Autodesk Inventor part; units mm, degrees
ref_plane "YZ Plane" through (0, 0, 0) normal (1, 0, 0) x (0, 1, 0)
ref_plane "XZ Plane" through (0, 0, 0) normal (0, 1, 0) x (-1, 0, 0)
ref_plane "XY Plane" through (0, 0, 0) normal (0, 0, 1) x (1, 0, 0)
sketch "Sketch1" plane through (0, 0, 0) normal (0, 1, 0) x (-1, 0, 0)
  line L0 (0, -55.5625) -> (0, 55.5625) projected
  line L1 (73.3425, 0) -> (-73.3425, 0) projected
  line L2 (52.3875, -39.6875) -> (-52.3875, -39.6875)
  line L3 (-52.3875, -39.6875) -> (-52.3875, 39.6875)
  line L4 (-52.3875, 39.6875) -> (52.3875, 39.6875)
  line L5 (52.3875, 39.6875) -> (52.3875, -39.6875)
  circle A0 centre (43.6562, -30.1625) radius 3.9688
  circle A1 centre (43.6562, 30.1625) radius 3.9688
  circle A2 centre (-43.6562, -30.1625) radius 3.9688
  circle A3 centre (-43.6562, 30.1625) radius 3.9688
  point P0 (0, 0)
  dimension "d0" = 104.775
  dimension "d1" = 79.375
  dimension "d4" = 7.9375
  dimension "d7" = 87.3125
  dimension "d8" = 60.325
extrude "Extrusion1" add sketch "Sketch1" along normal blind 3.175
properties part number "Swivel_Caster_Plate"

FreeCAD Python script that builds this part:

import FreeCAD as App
import Part
import Sketcher
from FreeCAD import Vector
Q = App.Units.Quantity


def add_polygon(sketch, points):
    """Adds a closed chain of lines whose ends are joined by coincident constraints."""
    first, n = sketch.GeometryCount, len(points)
    for a, b in zip(points, points[1:] + points[:1]):
        sketch.addGeometry(Part.LineSegment(App.Vector(*a, 0), App.Vector(*b, 0)), False)
    for i in range(n):
        sketch.addConstraint(Sketcher.Constraint("Coincident", first + i, 2, first + (i + 1) % n, 1))

doc = App.newDocument("Part")
body = doc.addObject("PartDesign::Body", "Body")

# Sketch on XZ plane
sketch1 = body.newObject("Sketcher::SketchObject", "Sketch")
sketch1.AttachmentSupport = (doc.getObject("XZ_Plane"), [""])
sketch1.MapMode = "FlatFace"
add_polygon(sketch1, [(52.4, -39.7), (-52.4, -39.7), (-52.4, 39.7), (52.4, 39.7)])  # lines 0-3
sketch1.addGeometry(Part.Circle(Vector(43.7, -30.2, 0), Vector(0, 0, 1), 4), False)  # 4
sketch1.addGeometry(Part.Circle(Vector(43.7, 30.2, 0), Vector(0, 0, 1), 4), False)  # 5
sketch1.addGeometry(Part.Circle(Vector(-43.7, -30.2, 0), Vector(0, 0, 1), 4), False)  # 6
sketch1.addGeometry(Part.Circle(Vector(-43.7, 30.2, 0), Vector(0, 0, 1), 4), False)  # 7
sketch1.addConstraint(Sketcher.Constraint("Horizontal", 0))
sketch1.addConstraint(Sketcher.Constraint("Vertical", 1))
sketch1.addConstraint(Sketcher.Constraint("Horizontal", 2))
sketch1.addConstraint(Sketcher.Constraint("Vertical", 3))
sketch1.addConstraint(Sketcher.Constraint("Equal", 4, 5))
sketch1.addConstraint(Sketcher.Constraint("Equal", 5, 6))
sketch1.addConstraint(Sketcher.Constraint("Equal", 6, 7))
sketch1.addConstraint(Sketcher.Constraint("Symmetric", 5, 3, 6, 3, -1, 1))
sketch1.addConstraint(Sketcher.Constraint("Symmetric", 4, 3, 7, 3, -1, 1))
sketch1.addConstraint(Sketcher.Constraint("Symmetric", 0, 2, 2, 2, -1, 1))
sketch1.addConstraint(Sketcher.Constraint("Symmetric", 4, 3, 6, 3, -2))
sketch1.addConstraint(Sketcher.Constraint("Diameter", 4, Q("0.3125 in")))
sketch1.addConstraint(Sketcher.Constraint("DistanceX", 0, 2, 0, 1, Q("4.125 in")))
sketch1.addConstraint(Sketcher.Constraint("DistanceY", 1, 1, 1, 2, Q("3.125 in")))
sketch1.addConstraint(Sketcher.Constraint("DistanceY", 4, 3, 5, 3, Q("2.375 in")))
sketch1.addConstraint(Sketcher.Constraint("DistanceX", 6, 3, 4, 3, Q("3.4375 in")))
pad1 = body.newObject("PartDesign::Pad", "Pad")
pad1.Profile = sketch1
pad1.Length = Q("0.125 in")
pad1.Reversed = True

doc.recompute()
